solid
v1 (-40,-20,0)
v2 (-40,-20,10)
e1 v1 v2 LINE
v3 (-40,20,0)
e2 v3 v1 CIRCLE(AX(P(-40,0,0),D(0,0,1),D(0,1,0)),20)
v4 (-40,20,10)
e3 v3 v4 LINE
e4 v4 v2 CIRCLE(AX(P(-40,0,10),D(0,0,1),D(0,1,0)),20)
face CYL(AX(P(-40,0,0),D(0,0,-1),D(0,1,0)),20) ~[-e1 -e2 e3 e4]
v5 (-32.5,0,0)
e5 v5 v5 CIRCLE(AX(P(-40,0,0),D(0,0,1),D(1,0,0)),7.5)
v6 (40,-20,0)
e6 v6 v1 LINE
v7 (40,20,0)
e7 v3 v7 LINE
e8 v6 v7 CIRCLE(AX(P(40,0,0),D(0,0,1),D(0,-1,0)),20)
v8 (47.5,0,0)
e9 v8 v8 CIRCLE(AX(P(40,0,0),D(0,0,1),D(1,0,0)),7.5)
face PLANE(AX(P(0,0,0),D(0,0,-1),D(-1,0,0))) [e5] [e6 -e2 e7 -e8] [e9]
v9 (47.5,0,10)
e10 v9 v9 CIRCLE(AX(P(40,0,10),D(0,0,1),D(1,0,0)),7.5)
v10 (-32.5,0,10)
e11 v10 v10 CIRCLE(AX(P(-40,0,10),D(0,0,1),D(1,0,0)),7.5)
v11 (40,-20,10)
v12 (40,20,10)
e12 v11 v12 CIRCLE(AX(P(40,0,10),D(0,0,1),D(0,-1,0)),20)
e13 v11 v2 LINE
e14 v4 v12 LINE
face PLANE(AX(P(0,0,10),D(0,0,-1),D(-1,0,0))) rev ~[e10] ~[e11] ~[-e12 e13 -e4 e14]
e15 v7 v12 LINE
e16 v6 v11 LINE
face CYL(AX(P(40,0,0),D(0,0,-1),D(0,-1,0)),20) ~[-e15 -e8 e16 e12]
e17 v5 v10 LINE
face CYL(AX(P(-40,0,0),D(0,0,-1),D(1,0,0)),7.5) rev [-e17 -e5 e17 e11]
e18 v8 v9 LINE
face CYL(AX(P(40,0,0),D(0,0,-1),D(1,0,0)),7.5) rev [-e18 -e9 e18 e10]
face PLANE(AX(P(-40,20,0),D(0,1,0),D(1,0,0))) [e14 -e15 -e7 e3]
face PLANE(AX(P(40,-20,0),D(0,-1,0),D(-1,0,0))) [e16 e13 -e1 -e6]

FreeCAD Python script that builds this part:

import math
import FreeCAD as App
import Part
import Sketcher

doc = App.newDocument("Part")
body = doc.addObject("PartDesign::Body", "Body")

sketch1 = body.newObject("Sketcher::SketchObject", "Sketch")
sketch1.AttachmentSupport = (doc.getObject("XY_Plane"), [""])
sketch1.MapMode = "FlatFace"
sketch1.addGeometry(Part.LineSegment(App.Vector(40, 20, 0), App.Vector(-40, 20, 0)), False)
sketch1.addGeometry(Part.ArcOfCircle(Part.Circle(App.Vector(-40, 0, 0), App.Vector(0, 0, 1), 20), math.radians(90), math.radians(270)), False)
sketch1.addGeometry(Part.LineSegment(App.Vector(-40, -20, 0), App.Vector(40, -20, 0)), False)
sketch1.addGeometry(Part.ArcOfCircle(Part.Circle(App.Vector(40, 0, 0), App.Vector(0, 0, 1), 20), math.radians(-90), math.radians(90)), False)
sketch1.addGeometry(Part.Circle(App.Vector(40, 0, 0), App.Vector(0, 0, 1), 7.5), False)
sketch1.addGeometry(Part.Circle(App.Vector(-40, 0, 0), App.Vector(0, 0, 1), 7.5), False)
sketch1.addConstraint(Sketcher.Constraint("Tangent", 0, 2, 1, 1))
sketch1.addConstraint(Sketcher.Constraint("Tangent", 1, 2, 2, 1))
sketch1.addConstraint(Sketcher.Constraint("Tangent", 2, 2, 3, 1))
sketch1.addConstraint(Sketcher.Constraint("Tangent", 3, 2, 0, 1))
sketch1.addConstraint(Sketcher.Constraint("Horizontal", 0))
sketch1.addConstraint(Sketcher.Constraint("Horizontal", 2))
sketch1.addConstraint(Sketcher.Constraint("Coincident", 4, 3, 3, 3))
sketch1.addConstraint(Sketcher.Constraint("Coincident", 5, 3, 1, 3))
sketch1.addConstraint(Sketcher.Constraint("Equal", 4, 5))
sketch1.addConstraint(Sketcher.Constraint("Symmetric", 1, 3, 3, 3, -1, 1))
sketch1.addConstraint(Sketcher.Constraint("Diameter", 4, 15.0))
sketch1.addConstraint(Sketcher.Constraint("Radius", 1, 20.0))
sketch1.addConstraint(Sketcher.Constraint("DistanceX", 0, 2, 0, 1, 80.0))
pad1 = body.newObject("PartDesign::Pad", "Pad")
pad1.Profile = sketch1
pad1.Length = 10

doc.recompute()
